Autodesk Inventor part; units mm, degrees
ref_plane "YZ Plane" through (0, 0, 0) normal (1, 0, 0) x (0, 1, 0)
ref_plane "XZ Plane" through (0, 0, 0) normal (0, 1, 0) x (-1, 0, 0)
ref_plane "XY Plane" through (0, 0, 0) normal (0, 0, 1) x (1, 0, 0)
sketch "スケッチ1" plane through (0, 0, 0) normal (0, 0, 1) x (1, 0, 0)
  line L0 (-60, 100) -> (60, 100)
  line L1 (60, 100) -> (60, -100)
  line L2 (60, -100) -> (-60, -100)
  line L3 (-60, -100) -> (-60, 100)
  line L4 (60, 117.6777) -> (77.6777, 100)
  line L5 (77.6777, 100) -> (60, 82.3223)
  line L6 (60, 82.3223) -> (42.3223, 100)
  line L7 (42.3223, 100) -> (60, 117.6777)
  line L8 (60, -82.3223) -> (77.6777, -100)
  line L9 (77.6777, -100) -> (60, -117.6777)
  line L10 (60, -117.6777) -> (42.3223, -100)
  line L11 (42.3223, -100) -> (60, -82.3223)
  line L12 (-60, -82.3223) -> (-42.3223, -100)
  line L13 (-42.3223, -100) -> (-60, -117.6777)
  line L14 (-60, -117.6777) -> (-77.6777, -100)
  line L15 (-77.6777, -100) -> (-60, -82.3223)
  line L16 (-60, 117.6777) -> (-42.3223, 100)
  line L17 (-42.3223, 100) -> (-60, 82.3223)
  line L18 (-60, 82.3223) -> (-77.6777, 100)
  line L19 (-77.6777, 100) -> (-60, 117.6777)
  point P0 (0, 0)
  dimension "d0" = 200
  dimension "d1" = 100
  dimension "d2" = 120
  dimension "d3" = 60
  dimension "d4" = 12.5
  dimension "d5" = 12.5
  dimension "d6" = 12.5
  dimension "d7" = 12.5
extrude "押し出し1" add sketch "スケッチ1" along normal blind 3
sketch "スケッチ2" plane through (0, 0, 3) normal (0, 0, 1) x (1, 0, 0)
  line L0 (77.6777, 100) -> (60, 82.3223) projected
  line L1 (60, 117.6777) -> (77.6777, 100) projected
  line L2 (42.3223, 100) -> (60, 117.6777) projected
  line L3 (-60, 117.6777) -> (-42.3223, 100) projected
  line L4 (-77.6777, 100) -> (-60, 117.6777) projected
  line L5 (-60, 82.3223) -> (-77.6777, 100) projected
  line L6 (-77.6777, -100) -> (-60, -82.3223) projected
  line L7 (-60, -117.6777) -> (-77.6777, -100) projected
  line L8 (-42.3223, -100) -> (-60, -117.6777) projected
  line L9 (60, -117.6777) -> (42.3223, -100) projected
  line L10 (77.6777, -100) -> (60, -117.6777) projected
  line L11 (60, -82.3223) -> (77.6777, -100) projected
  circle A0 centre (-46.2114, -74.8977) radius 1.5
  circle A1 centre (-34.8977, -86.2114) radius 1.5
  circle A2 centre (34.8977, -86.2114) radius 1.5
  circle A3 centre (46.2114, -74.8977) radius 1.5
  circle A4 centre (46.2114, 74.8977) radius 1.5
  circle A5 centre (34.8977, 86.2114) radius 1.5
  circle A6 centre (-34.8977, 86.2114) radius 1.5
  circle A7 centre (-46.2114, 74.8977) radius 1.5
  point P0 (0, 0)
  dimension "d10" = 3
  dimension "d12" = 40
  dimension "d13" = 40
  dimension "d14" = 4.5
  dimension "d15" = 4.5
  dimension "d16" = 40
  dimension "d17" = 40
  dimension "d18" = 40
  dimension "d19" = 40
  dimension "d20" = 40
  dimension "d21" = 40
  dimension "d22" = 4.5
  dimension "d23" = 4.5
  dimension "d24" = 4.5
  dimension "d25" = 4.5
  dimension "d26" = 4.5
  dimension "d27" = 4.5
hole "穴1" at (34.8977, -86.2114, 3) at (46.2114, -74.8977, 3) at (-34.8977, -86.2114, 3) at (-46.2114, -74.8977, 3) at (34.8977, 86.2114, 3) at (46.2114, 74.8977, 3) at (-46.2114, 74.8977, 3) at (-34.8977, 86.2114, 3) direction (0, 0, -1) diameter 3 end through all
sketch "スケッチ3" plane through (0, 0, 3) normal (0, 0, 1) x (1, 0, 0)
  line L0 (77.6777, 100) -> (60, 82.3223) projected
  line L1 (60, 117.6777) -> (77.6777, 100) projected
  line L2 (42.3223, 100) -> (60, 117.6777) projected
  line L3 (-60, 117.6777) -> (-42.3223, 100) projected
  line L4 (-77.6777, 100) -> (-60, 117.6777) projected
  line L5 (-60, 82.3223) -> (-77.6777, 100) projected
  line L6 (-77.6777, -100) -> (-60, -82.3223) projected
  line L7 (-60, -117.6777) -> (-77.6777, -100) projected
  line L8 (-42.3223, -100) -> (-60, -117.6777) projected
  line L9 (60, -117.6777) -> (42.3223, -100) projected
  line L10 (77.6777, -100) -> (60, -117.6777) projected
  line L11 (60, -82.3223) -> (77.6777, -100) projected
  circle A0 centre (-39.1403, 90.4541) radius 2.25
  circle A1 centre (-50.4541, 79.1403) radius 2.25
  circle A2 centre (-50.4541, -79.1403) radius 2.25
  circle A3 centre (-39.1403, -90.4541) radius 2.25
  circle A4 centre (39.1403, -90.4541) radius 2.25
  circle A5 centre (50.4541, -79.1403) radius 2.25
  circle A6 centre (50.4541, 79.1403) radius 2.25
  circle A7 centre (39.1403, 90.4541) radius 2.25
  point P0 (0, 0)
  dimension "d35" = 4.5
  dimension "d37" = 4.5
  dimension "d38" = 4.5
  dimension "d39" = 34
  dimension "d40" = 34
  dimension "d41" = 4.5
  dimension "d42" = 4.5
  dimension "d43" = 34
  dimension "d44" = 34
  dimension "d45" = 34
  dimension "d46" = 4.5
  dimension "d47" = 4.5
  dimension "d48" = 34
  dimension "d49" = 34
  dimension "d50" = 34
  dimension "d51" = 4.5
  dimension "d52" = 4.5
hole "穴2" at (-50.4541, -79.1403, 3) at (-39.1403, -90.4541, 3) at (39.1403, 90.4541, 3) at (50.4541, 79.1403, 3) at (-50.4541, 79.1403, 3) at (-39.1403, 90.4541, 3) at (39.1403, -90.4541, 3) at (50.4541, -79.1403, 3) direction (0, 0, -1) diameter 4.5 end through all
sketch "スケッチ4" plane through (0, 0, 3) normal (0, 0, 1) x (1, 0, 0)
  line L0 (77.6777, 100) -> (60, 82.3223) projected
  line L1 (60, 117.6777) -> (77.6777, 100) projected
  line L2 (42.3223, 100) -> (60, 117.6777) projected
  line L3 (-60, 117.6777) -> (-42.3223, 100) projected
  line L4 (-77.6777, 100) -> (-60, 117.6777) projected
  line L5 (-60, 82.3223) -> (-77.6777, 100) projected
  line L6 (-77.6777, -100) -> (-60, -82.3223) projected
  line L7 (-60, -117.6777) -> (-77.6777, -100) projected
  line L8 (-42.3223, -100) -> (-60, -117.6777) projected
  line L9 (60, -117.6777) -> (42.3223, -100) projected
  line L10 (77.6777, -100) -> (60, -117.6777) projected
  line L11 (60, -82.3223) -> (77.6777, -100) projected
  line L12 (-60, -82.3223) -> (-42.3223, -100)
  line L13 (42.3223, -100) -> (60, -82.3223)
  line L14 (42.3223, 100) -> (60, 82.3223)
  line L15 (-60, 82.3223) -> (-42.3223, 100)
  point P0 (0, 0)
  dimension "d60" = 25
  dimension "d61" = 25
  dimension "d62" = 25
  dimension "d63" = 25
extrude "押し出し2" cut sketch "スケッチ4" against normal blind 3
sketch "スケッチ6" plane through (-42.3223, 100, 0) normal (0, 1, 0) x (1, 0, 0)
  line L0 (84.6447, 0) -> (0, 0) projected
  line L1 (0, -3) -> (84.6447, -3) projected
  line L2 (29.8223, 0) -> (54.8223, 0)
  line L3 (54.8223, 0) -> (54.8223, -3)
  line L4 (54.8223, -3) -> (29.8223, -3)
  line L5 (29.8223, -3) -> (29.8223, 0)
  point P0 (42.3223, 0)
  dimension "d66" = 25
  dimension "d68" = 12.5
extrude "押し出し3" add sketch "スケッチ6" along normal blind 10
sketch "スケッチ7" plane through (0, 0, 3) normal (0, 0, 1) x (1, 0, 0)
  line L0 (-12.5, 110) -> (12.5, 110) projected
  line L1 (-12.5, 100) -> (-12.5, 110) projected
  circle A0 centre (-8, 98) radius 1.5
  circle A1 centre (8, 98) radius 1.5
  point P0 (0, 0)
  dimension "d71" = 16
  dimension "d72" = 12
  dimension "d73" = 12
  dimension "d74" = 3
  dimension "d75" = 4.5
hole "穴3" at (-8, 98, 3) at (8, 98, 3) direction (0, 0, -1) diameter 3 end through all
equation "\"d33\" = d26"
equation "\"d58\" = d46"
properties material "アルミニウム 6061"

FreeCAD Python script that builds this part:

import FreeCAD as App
import Part
import Sketcher
from FreeCAD import Vector


def add_polygon(sketch, points):
    """Adds a closed chain of lines whose ends are joined by coincident constraints."""
    first, n = sketch.GeometryCount, len(points)
    for a, b in zip(points, points[1:] + points[:1]):
        sketch.addGeometry(Part.LineSegment(App.Vector(*a, 0), App.Vector(*b, 0)), False)
    for i in range(n):
        sketch.addConstraint(Sketcher.Constraint("Coincident", first + i, 2, first + (i + 1) % n, 1))

doc = App.newDocument("Part")
body = doc.addObject("PartDesign::Body", "Body")

sketch1 = doc.addObject("Sketcher::SketchObject", "Sketch")
body.addObject(sketch1)
sketch1.AttachmentSupport = (doc.XY_Plane, [""])
sketch1.MapMode = "FlatFace"
add_polygon(sketch1, [(-78, 100), (-60, 82), (-60, -82), (-78, -100), (-60, -118), (-42, -100), (42, -100), (60, -118), (78, -100), (60, -82), (60, 82), (78, 100), (60, 118), (42, 100), (-42, 100), (-60, 118)])
sketch1.addConstraint(Sketcher.Constraint("Vertical", 1))
sketch1.addConstraint(Sketcher.Constraint("Horizontal", 5))
sketch1.addConstraint(Sketcher.Constraint("Vertical", 9))
sketch1.addConstraint(Sketcher.Constraint("Horizontal", 13))
sketch1.addConstraint(Sketcher.Constraint("Symmetric", 0, 2, 8, 2, -1, 1))
sketch1.addConstraint(Sketcher.Constraint("Symmetric", 2, 2, 10, 2, -1, 1))
sketch1.addConstraint(Sketcher.Constraint("Symmetric", 3, 2, 11, 2, -1, 1))
sketch1.addConstraint(Sketcher.Constraint("Symmetric", 4, 2, 12, 2, -1, 1))
sketch1.addConstraint(Sketcher.Constraint("Symmetric", 6, 2, 14, 2, -1, 1))
sketch1.addConstraint(Sketcher.Constraint("Symmetric", 7, 2, 15, 2, -1, 1))
sketch1.addConstraint(Sketcher.Constraint("Symmetric", 3, 2, 6, 2, -2))
sketch1.addConstraint(Sketcher.Constraint("Symmetric", 2, 2, 7, 2, -2))
sketch1.addConstraint(Sketcher.Constraint("Perpendicular", 0, 2))
sketch1.addConstraint(Sketcher.Constraint("Perpendicular", 2, 3))
sketch1.addConstraint(Sketcher.Constraint("Perpendicular", 3, 4))
sketch1.addConstraint(Sketcher.Constraint("Perpendicular", 4, 6))
sketch1.addConstraint(Sketcher.Constraint("Perpendicular", 6, 7))
sketch1.addConstraint(Sketcher.Constraint("Perpendicular", 8, 10))
sketch1.addConstraint(Sketcher.Constraint("Perpendicular", 12, 14))
sketch1.addConstraint(Sketcher.Constraint("Horizontal", 2, 2, 4, 2))
sketch1.addConstraint(Sketcher.Constraint("Vertical", 1, 2, 3, 2))
sketch1.addConstraint(Sketcher.Constraint("DistanceX", 0, 2, -1, 1, 60.0))
sketch1.addConstraint(Sketcher.Constraint("DistanceY", 2, 2, -1, 1, 100.0))
sketch1.addConstraint(Sketcher.Constraint("Distance", 0, 25.0))
pad1 = doc.addObject("PartDesign::Pad", "Pad")
body.addObject(pad1)
pad1.Profile = sketch1
pad1.Length = 3

sketch2 = doc.addObject("Sketcher::SketchObject", "Sketch001")
body.addObject(sketch2)
sketch2.AttachmentSupport = (doc.XY_Plane, [""])
sketch2.MapMode = "FlatFace"
sketch2.AttachmentOffset = App.Placement(Vector(0, 0, 3), App.Rotation())
sketch2.addGeometry(Part.Circle(Vector(34.9, -86.2, 0), Vector(0, 0, 1), 1.5), False)
sketch2.addGeometry(Part.Circle(Vector(46.2, -74.9, 0), Vector(0, 0, 1), 1.5), False)
sketch2.addGeometry(Part.Circle(Vector(-34.9, -86.2, 0), Vector(0, 0, 1), 1.5), False)
sketch2.addGeometry(Part.Circle(Vector(-46.2, -74.9, 0), Vector(0, 0, 1), 1.5), False)
sketch2.addGeometry(Part.Circle(Vector(34.9, 86.2, 0), Vector(0, 0, 1), 1.5), False)
sketch2.addGeometry(Part.Circle(Vector(46.2, 74.9, 0), Vector(0, 0, 1), 1.5), False)
sketch2.addGeometry(Part.Circle(Vector(-46.2, 74.9, 0), Vector(0, 0, 1), 1.5), False)
sketch2.addGeometry(Part.Circle(Vector(-34.9, 86.2, 0), Vector(0, 0, 1), 1.5), False)
sketch2.addConstraint(Sketcher.Constraint("Equal", 0, 1))
sketch2.addConstraint(Sketcher.Constraint("Equal", 1, 2))
sketch2.addConstraint(Sketcher.Constraint("Equal", 2, 3))
sketch2.addConstraint(Sketcher.Constraint("Equal", 3, 4))
sketch2.addConstraint(Sketcher.Constraint("Equal", 4, 5))
sketch2.addConstraint(Sketcher.Constraint("Equal", 5, 6))
sketch2.addConstraint(Sketcher.Constraint("Equal", 6, 7))
sketch2.addConstraint(Sketcher.Constraint("Symmetric", 2, 3, 4, 3, -1, 1))
sketch2.addConstraint(Sketcher.Constraint("Symmetric", 3, 3, 5, 3, -1, 1))
sketch2.addConstraint(Sketcher.Constraint("Symmetric", 1, 3, 6, 3, -1, 1))
sketch2.addConstraint(Sketcher.Constraint("Symmetric", 0, 3, 7, 3, -1, 1))
sketch2.addConstraint(Sketcher.Constraint("Symmetric", 0, 3, 2, 3, -2))
sketch2.addConstraint(Sketcher.Constraint("Symmetric", 1, 3, 3, 3, -2))
sketch2.addConstraint(Sketcher.Constraint("Diameter", 0, 3.0))
sketch2.addConstraint(Sketcher.Constraint("DistanceX", 2, 3, 1, 3, 81.109))
sketch2.addConstraint(Sketcher.Constraint("DistanceY", 1, 3, 4, 3, 161.109))
sketch2.addConstraint(Sketcher.Constraint("DistanceX", -1, 1, 0, 3, 34.8977))
sketch2.addConstraint(Sketcher.Constraint("DistanceY", 0, 3, -1, 1, 86.2114))
doc.recompute()
hole = doc.addObject("PartDesign::Hole", "Hole")
body.addObject(hole)
hole.Profile = sketch2
hole.ThreadType = "None"
hole.Diameter = 3
hole.DepthType = "ThroughAll"

sketch3 = doc.addObject("Sketcher::SketchObject", "Sketch002")
body.addObject(sketch3)
sketch3.AttachmentSupport = (doc.XY_Plane, [""])
sketch3.MapMode = "FlatFace"
sketch3.AttachmentOffset = App.Placement(Vector(0, 0, 3), App.Rotation())
sketch3.addGeometry(Part.Circle(Vector(-50.5, -79.1, 0), Vector(0, 0, 1), 2.2), False)
sketch3.addGeometry(Part.Circle(Vector(-39.1, -90.5, 0), Vector(0, 0, 1), 2.2), False)
sketch3.addGeometry(Part.Circle(Vector(39.1, 90.5, 0), Vector(0, 0, 1), 2.2), False)
sketch3.addGeometry(Part.Circle(Vector(50.5, 79.1, 0), Vector(0, 0, 1), 2.2), False)
sketch3.addGeometry(Part.Circle(Vector(-50.5, 79.1, 0), Vector(0, 0, 1), 2.2), False)
sketch3.addGeometry(Part.Circle(Vector(-39.1, 90.5, 0), Vector(0, 0, 1), 2.2), False)
sketch3.addGeometry(Part.Circle(Vector(39.1, -90.5, 0), Vector(0, 0, 1), 2.2), False)
sketch3.addGeometry(Part.Circle(Vector(50.5, -79.1, 0), Vector(0, 0, 1), 2.2), False)
sketch3.addConstraint(Sketcher.Constraint("Equal", 0, 1))
sketch3.addConstraint(Sketcher.Constraint("Equal", 1, 2))
sketch3.addConstraint(Sketcher.Constraint("Equal", 2, 3))
sketch3.addConstraint(Sketcher.Constraint("Equal", 3, 4))
sketch3.addConstraint(Sketcher.Constraint("Equal", 4, 5))
sketch3.addConstraint(Sketcher.Constraint("Equal", 5, 6))
sketch3.addConstraint(Sketcher.Constraint("Equal", 6, 7))
sketch3.addConstraint(Sketcher.Constraint("Symmetric", 1, 3, 2, 3, -1, 1))
sketch3.addConstraint(Sketcher.Constraint("Symmetric", 0, 3, 3, 3, -1, 1))
sketch3.addConstraint(Sketcher.Constraint("Symmetric", 5, 3, 6, 3, -1, 1))
sketch3.addConstraint(Sketcher.Constraint("Symmetric", 4, 3, 7, 3, -1, 1))
sketch3.addConstraint(Sketcher.Constraint("Symmetric", 3, 3, 4, 3, -2))
sketch3.addConstraint(Sketcher.Constraint("Symmetric", 2, 3, 5, 3, -2))
sketch3.addConstraint(Sketcher.Constraint("Diameter", 0, 4.5))
sketch3.addConstraint(Sketcher.Constraint("DistanceX", 0, 3, -1, 1, 50.454))
sketch3.addConstraint(Sketcher.Constraint("DistanceY", 1, 3, -1, 1, 90.454))
sketch3.addConstraint(Sketcher.Constraint("DistanceY", 0, 3, -1, 1, 79.1403))
sketch3.addConstraint(Sketcher.Constraint("DistanceX", 1, 3, -1, 1, 39.1403))
doc.recompute()
hole2 = doc.addObject("PartDesign::Hole", "Hole001")
body.addObject(hole2)
hole2.Profile = sketch3
hole2.ThreadType = "None"
hole2.Diameter = 4.5
hole2.DepthType = "ThroughAll"

sketch4 = doc.addObject("Sketcher::SketchObject", "Sketch003")
body.addObject(sketch4)
sketch4.AttachmentSupport = (doc.XY_Plane, [""])
sketch4.MapMode = "FlatFace"
sketch4.AttachmentOffset = App.Placement(Vector(0, 0, 3), App.Rotation())
add_polygon(sketch4, [(60, 82), (78, 100), (60, 118), (42, 100)])
add_polygon(sketch4, [(-42, 100), (-60, 118), (-78, 100), (-60, 82)])
add_polygon(sketch4, [(-60, -82), (-78, -100), (-60, -118), (-42, -100)])
add_polygon(sketch4, [(42, -100), (60, -118), (78, -100), (60, -82)])
sketch4.addConstraint(Sketcher.Constraint("Symmetric", 0, 2, 8, 2, -1, 1))
sketch4.addConstraint(Sketcher.Constraint("Symmetric", 1, 2, 9, 2, -1, 1))
sketch4.addConstraint(Sketcher.Constraint("Symmetric", 2, 2, 10, 2, -1, 1))
sketch4.addConstraint(Sketcher.Constraint("Symmetric", 3, 2, 11, 2, -1, 1))
sketch4.addConstraint(Sketcher.Constraint("Symmetric", 4, 2, 12, 2, -1, 1))
sketch4.addConstraint(Sketcher.Constraint("Symmetric", 5, 2, 13, 2, -1, 1))
sketch4.addConstraint(Sketcher.Constraint("Symmetric", 6, 2, 14, 2, -1, 1))
sketch4.addConstraint(Sketcher.Constraint("Symmetric", 7, 2, 15, 2, -1, 1))
sketch4.addConstraint(Sketcher.Constraint("Symmetric", 1, 2, 4, 2, -2))
sketch4.addConstraint(Sketcher.Constraint("Symmetric", 0, 2, 5, 2, -2))
sketch4.addConstraint(Sketcher.Constraint("Symmetric", 3, 2, 6, 2, -2))
sketch4.addConstraint(Sketcher.Constraint("Symmetric", 2, 2, 7, 2, -2))
sketch4.addConstraint(Sketcher.Constraint("Perpendicular", 0, 1))
sketch4.addConstraint(Sketcher.Constraint("Perpendicular", 1, 2))
sketch4.addConstraint(Sketcher.Constraint("Perpendicular", 2, 3))
sketch4.addConstraint(Sketcher.Constraint("Parallel", 3, 4))
sketch4.addConstraint(Sketcher.Constraint("Horizontal", 0, 2, 2, 2))
sketch4.addConstraint(Sketcher.Constraint("Distance", 0, 25.0))
sketch4.addConstraint(Sketcher.Constraint("DistanceY", -1, 1, 0, 2, 100.0))
sketch4.addConstraint(Sketcher.Constraint("DistanceX", -1, 1, 1, 2, 60.0))
pocket1 = doc.addObject("PartDesign::Pocket", "Pocket")
body.addObject(pocket1)
pocket1.Profile = sketch4
pocket1.Length = 3

sketch5 = doc.addObject("Sketcher::SketchObject", "Sketch004")
body.addObject(sketch5)
sketch5.AttachmentSupport = (doc.XZ_Plane, [""])
sketch5.MapMode = "FlatFace"
sketch5.AttachmentOffset = App.Placement(Vector(0, 0, -100), App.Rotation())
add_polygon(sketch5, [(12.5, 3), (12.5, 0), (-12.5, 0), (-12.5, 3)])
sketch5.addConstraint(Sketcher.Constraint("Vertical", 0))
sketch5.addConstraint(Sketcher.Constraint("Horizontal", 1))
sketch5.addConstraint(Sketcher.Constraint("Vertical", 2))
sketch5.addConstraint(Sketcher.Constraint("Horizontal", 3))
sketch5.addConstraint(Sketcher.Constraint("Symmetric", 0, 2, 1, 2, -1, 1))
sketch5.addConstraint(Sketcher.Constraint("DistanceX", 1, 2, 1, 1, 25.0))
sketch5.addConstraint(Sketcher.Constraint("DistanceY", 0, 2, 0, 1, 3.0))
pad2 = doc.addObject("PartDesign::Pad", "Pad001")
body.addObject(pad2)
pad2.Profile = sketch5
pad2.Length = 10
pad2.Reversed = True

sketch6 = doc.addObject("Sketcher::SketchObject", "Sketch005")
body.addObject(sketch6)
sketch6.AttachmentSupport = (doc.XY_Plane, [""])
sketch6.MapMode = "FlatFace"
sketch6.AttachmentOffset = App.Placement(Vector(0, 0, 3), App.Rotation())
sketch6.addGeometry(Part.Circle(Vector(-8, 98, 0), Vector(0, 0, 1), 1.5), False)
sketch6.addGeometry(Part.Circle(Vector(8, 98, 0), Vector(0, 0, 1), 1.5), False)
sketch6.addConstraint(Sketcher.Constraint("Equal", 0, 1))
sketch6.addConstraint(Sketcher.Constraint("Symmetric", 0, 3, 1, 3, -2))
sketch6.addConstraint(Sketcher.Constraint("Diameter", 0, 3.0))
sketch6.addConstraint(Sketcher.Constraint("DistanceX", 0, 3, -1, 1, 8.0))
sketch6.addConstraint(Sketcher.Constraint("DistanceY", -1, 1, 0, 3, 98.0))
doc.recompute()
hole3 = doc.addObject("PartDesign::Hole", "Hole002")
body.addObject(hole3)
hole3.Profile = sketch6
hole3.ThreadType = "None"
hole3.Diameter = 3
hole3.DepthType = "ThroughAll"

doc.recompute()
